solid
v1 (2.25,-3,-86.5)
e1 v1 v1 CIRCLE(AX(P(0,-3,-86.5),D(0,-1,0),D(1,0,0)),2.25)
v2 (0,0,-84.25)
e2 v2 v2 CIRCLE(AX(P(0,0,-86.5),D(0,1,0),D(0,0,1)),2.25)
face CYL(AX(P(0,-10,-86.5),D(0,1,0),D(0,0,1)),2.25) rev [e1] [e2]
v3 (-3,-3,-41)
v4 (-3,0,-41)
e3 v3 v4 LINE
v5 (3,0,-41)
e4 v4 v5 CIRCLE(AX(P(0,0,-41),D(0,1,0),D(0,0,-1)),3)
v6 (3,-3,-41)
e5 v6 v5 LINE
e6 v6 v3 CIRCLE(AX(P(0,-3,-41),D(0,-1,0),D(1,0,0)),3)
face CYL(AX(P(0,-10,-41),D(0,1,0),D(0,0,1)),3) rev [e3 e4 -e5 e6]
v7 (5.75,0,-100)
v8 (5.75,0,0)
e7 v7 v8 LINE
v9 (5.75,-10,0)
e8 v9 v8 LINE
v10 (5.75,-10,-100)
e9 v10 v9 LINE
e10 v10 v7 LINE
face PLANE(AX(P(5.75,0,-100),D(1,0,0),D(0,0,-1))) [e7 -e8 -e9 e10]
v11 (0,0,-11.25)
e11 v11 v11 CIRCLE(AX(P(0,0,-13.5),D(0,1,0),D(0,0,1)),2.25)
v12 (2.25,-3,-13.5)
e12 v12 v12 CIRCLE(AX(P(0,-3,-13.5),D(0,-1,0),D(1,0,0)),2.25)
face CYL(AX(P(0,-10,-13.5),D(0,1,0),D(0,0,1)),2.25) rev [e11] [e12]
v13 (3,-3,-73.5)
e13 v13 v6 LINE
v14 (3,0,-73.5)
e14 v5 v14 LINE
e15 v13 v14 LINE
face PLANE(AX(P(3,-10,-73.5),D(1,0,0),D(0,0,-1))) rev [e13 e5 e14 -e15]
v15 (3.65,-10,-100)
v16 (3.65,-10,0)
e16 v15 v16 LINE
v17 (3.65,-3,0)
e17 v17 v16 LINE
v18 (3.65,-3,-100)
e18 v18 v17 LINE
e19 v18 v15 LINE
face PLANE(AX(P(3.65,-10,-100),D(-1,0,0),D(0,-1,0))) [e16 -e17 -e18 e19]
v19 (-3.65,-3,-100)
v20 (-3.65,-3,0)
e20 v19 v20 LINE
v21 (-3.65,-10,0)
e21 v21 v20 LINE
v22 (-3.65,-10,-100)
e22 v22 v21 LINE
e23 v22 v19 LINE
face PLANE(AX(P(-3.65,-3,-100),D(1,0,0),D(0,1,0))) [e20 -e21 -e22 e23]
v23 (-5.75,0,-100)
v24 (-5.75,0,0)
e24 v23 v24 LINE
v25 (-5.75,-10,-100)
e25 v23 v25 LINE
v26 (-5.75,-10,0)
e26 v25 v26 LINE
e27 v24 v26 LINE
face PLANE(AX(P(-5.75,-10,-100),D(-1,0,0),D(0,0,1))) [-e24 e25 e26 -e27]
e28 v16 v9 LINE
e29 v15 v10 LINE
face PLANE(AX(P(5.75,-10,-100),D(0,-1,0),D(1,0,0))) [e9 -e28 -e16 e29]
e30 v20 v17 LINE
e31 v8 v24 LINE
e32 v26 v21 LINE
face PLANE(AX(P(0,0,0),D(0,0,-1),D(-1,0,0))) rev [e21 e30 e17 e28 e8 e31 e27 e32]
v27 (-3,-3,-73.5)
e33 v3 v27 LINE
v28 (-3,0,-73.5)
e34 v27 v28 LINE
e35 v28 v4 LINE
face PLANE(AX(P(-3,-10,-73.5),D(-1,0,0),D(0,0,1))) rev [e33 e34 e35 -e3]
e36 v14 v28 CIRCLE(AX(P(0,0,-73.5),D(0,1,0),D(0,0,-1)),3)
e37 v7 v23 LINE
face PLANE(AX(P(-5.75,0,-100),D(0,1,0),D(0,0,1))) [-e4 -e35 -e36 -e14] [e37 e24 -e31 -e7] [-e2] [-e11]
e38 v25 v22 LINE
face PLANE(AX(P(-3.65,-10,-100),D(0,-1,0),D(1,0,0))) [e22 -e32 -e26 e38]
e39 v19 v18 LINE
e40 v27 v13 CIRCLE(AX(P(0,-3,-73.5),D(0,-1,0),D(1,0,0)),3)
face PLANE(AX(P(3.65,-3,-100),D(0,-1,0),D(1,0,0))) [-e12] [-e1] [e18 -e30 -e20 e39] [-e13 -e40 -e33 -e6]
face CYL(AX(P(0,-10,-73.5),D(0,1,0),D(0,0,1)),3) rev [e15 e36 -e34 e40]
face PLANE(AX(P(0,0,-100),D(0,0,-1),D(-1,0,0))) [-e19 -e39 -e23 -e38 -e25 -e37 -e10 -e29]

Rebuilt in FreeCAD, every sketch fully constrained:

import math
import FreeCAD as App
import Part
import Sketcher

V = App.Vector
Q = App.Units.Quantity

doc = App.newDocument("Part")
body = doc.addObject("PartDesign::Body", "Body")

sketch1 = body.newObject("Sketcher::SketchObject", "Sketch")
sketch1.AttachmentSupport = (doc.getObject("XY_Plane"), [""])
sketch1.MapMode = "FlatFace"
sketch1.addGeometry(Part.LineSegment(V(5.75, 0, 0), V(-5.75, 0, 0)), False)
sketch1.addGeometry(Part.LineSegment(V(-5.75, 0, 0), V(-5.75, -10, 0)), False)
sketch1.addGeometry(Part.LineSegment(V(-5.75, -10, 0), V(-3.65, -10, 0)), False)
sketch1.addGeometry(Part.LineSegment(V(-3.65, -10, 0), V(-3.65, -3, 0)), False)
sketch1.addGeometry(Part.LineSegment(V(-3.65, -3, 0), V(3.65, -3, 0)), False)
sketch1.addGeometry(Part.LineSegment(V(3.65, -3, 0), V(3.65, -10, 0)), False)
sketch1.addGeometry(Part.LineSegment(V(3.65, -10, 0), V(5.75, -10, 0)), False)
sketch1.addGeometry(Part.LineSegment(V(5.75, -10, 0), V(5.75, 0, 0)), False)
sketch1.addConstraint(Sketcher.Constraint("Coincident", 0, 2, 1, 1))
sketch1.addConstraint(Sketcher.Constraint("Coincident", 1, 2, 2, 1))
sketch1.addConstraint(Sketcher.Constraint("Coincident", 2, 2, 3, 1))
sketch1.addConstraint(Sketcher.Constraint("Coincident", 3, 2, 4, 1))
sketch1.addConstraint(Sketcher.Constraint("Coincident", 4, 2, 5, 1))
sketch1.addConstraint(Sketcher.Constraint("Coincident", 5, 2, 6, 1))
sketch1.addConstraint(Sketcher.Constraint("Coincident", 6, 2, 7, 1))
sketch1.addConstraint(Sketcher.Constraint("Coincident", 7, 2, 0, 1))
sketch1.addConstraint(Sketcher.Constraint("Horizontal", 0))
sketch1.addConstraint(Sketcher.Constraint("Vertical", 1))
sketch1.addConstraint(Sketcher.Constraint("Horizontal", 2))
sketch1.addConstraint(Sketcher.Constraint("Vertical", 3))
sketch1.addConstraint(Sketcher.Constraint("Horizontal", 4))
sketch1.addConstraint(Sketcher.Constraint("Vertical", 5))
sketch1.addConstraint(Sketcher.Constraint("Horizontal", 6))
sketch1.addConstraint(Sketcher.Constraint("Vertical", 7))
sketch1.addConstraint(Sketcher.Constraint("Symmetric", 0, 2, 7, 2, -1, 1))
sketch1.addConstraint(Sketcher.Constraint("Symmetric", 2, 2, 5, 2, -2))
sketch1.addConstraint(Sketcher.Constraint("DistanceY", 1, 2, 1, 1, Q("10 mm")))
sketch1.addConstraint(Sketcher.Constraint("DistanceY", 3, 1, 3, 2, Q("7 mm")))
sketch1.addConstraint(Sketcher.Constraint("DistanceX", 0, 2, 0, 1, Q("11.5 mm")))
sketch1.addConstraint(Sketcher.Constraint("DistanceX", 2, 1, 2, 2, Q("2.1 mm")))
pad1 = body.newObject("PartDesign::Pad", "Pad")
pad1.Profile = sketch1
pad1.Length = 100
pad1.Reversed = True

sketch2 = body.newObject("Sketcher::SketchObject", "Sketch001")
sketch2.AttachmentSupport = (doc.getObject("XZ_Plane"), [""])
sketch2.MapMode = "FlatFace"
sketch2.addGeometry(Part.Circle(V(0, -86.5, 0), V(0, 0, 1), 2.25), False)
sketch2.addGeometry(Part.Circle(V(0, -13.5, 0), V(0, 0, 1), 2.25), False)
sketch2.addGeometry(Part.LineSegment(V(-3, -73.5, 0), V(-3, -41, 0)), False)
sketch2.addGeometry(Part.ArcOfCircle(Part.Circle(V(0, -41, 0), V(0, 0, 1), 3), math.radians(0), math.radians(180)), False)
sketch2.addGeometry(Part.LineSegment(V(3, -41, 0), V(3, -73.5, 0)), False)
sketch2.addGeometry(Part.ArcOfCircle(Part.Circle(V(0, -73.5, 0), V(0, 0, 1), 3), math.radians(180), math.radians(360)), False)
sketch2.addConstraint(Sketcher.Constraint("Tangent", 2, 2, 3, 2))
sketch2.addConstraint(Sketcher.Constraint("Tangent", 3, 1, 4, 1))
sketch2.addConstraint(Sketcher.Constraint("Tangent", 4, 2, 5, 2))
sketch2.addConstraint(Sketcher.Constraint("Tangent", 5, 1, 2, 1))
sketch2.addConstraint(Sketcher.Constraint("Vertical", 2))
sketch2.addConstraint(Sketcher.Constraint("Vertical", 4))
sketch2.addConstraint(Sketcher.Constraint("Equal", 0, 1))
sketch2.addConstraint(Sketcher.Constraint("PointOnObject", 0, 3, -2))
sketch2.addConstraint(Sketcher.Constraint("PointOnObject", 1, 3, -2))
sketch2.addConstraint(Sketcher.Constraint("PointOnObject", 3, 3, -2))
sketch2.addConstraint(Sketcher.Constraint("Radius", 3, Q("3 mm")))
sketch2.addConstraint(Sketcher.Constraint("Diameter", 0, Q("4.5 mm")))
sketch2.addConstraint(Sketcher.Constraint("DistanceY", 2, 1, 2, 2, Q("32.5 mm")))
sketch2.addConstraint(Sketcher.Constraint("DistanceY", 3, 3, -1, 1, Q("41 mm")))
sketch2.addConstraint(Sketcher.Constraint("DistanceY", 0, 3, 1, 3, Q("73 mm")))
sketch2.addConstraint(Sketcher.Constraint("DistanceY", 0, 3, 5, 3, Q("13 mm")))
pocket1 = body.newObject("PartDesign::Pocket", "Pocket")
pocket1.Profile = sketch2
pocket1.Type = "ThroughAll"
pocket1.Reversed = True

doc.recompute()
